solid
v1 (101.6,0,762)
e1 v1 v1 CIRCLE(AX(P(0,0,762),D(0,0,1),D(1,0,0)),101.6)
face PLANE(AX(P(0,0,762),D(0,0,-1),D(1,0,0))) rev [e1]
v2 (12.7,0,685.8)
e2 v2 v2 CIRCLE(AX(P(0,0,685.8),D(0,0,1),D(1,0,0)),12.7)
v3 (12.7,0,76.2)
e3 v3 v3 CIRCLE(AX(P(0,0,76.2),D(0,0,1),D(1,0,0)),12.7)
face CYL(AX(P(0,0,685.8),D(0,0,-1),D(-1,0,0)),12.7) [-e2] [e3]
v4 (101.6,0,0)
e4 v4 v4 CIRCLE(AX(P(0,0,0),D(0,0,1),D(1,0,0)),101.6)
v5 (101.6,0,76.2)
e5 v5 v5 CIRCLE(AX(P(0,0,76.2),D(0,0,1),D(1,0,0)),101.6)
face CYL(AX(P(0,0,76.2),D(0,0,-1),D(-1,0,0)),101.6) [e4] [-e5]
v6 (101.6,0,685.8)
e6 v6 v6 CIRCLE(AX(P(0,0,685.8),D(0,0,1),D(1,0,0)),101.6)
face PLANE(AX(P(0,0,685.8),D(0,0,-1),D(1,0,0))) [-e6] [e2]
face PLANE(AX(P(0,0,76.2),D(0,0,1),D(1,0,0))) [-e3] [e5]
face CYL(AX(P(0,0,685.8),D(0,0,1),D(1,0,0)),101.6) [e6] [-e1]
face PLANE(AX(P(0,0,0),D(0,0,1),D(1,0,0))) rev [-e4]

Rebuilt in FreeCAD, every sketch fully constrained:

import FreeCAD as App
import Part
import Sketcher
from FreeCAD import Vector
Q = App.Units.Quantity

doc = App.newDocument("Part")
body = doc.addObject("PartDesign::Body", "Body")

sketch1 = body.newObject("Sketcher::SketchObject", "Sketch")
sketch1.AttachmentSupport = (doc.getObject("XY_Plane"), [""])
sketch1.MapMode = "FlatFace"
sketch1.addGeometry(Part.Circle(Vector(0, 0, 0), Vector(0, 0, 1), 102), False)
sketch1.addConstraint([
    Sketcher.Constraint("Coincident", 0, 3, -1, 1),
    Sketcher.Constraint("Diameter", 0, Q("8 in")),
])
pad1 = body.newObject("PartDesign::Pad", "Pad")
pad1.Profile = sketch1
pad1.Length = Q("3 in")

sketch2 = body.newObject("Sketcher::SketchObject", "Sketch001")
sketch2.AttachmentSupport = (doc.getObject("XY_Plane"), [""])
sketch2.MapMode = "FlatFace"
sketch2.AttachmentOffset = App.Placement(Vector(0, 0, 3 * 25.4), App.Rotation())
sketch2.addGeometry(Part.Circle(Vector(0, 0, 0), Vector(0, 0, 1), 13), False)
sketch2.addConstraint([
    Sketcher.Constraint("Coincident", 0, 3, -1, 1),
    Sketcher.Constraint("Diameter", 0, Q("1 in")),
])
pad2 = body.newObject("PartDesign::Pad", "Pad001")
pad2.Profile = sketch2
pad2.Length = Q("24 in")
doc.recompute()

datumplane = body.newObject("PartDesign::Plane", "DatumPlane")
datumplane.AttachmentSupport = (doc.getObject("XY_Plane"), [""])
datumplane.MapMode = "FlatFace"
datumplane.AttachmentOffset = App.Placement(Vector(0, 0, 15 * 25.4), App.Rotation())
mirrored = body.newObject("PartDesign::Mirrored", "Mirrored")
mirrored.Originals = [pad1]
mirrored.MirrorPlane = (datumplane, [""])
body.Tip = mirrored

doc.recompute()
